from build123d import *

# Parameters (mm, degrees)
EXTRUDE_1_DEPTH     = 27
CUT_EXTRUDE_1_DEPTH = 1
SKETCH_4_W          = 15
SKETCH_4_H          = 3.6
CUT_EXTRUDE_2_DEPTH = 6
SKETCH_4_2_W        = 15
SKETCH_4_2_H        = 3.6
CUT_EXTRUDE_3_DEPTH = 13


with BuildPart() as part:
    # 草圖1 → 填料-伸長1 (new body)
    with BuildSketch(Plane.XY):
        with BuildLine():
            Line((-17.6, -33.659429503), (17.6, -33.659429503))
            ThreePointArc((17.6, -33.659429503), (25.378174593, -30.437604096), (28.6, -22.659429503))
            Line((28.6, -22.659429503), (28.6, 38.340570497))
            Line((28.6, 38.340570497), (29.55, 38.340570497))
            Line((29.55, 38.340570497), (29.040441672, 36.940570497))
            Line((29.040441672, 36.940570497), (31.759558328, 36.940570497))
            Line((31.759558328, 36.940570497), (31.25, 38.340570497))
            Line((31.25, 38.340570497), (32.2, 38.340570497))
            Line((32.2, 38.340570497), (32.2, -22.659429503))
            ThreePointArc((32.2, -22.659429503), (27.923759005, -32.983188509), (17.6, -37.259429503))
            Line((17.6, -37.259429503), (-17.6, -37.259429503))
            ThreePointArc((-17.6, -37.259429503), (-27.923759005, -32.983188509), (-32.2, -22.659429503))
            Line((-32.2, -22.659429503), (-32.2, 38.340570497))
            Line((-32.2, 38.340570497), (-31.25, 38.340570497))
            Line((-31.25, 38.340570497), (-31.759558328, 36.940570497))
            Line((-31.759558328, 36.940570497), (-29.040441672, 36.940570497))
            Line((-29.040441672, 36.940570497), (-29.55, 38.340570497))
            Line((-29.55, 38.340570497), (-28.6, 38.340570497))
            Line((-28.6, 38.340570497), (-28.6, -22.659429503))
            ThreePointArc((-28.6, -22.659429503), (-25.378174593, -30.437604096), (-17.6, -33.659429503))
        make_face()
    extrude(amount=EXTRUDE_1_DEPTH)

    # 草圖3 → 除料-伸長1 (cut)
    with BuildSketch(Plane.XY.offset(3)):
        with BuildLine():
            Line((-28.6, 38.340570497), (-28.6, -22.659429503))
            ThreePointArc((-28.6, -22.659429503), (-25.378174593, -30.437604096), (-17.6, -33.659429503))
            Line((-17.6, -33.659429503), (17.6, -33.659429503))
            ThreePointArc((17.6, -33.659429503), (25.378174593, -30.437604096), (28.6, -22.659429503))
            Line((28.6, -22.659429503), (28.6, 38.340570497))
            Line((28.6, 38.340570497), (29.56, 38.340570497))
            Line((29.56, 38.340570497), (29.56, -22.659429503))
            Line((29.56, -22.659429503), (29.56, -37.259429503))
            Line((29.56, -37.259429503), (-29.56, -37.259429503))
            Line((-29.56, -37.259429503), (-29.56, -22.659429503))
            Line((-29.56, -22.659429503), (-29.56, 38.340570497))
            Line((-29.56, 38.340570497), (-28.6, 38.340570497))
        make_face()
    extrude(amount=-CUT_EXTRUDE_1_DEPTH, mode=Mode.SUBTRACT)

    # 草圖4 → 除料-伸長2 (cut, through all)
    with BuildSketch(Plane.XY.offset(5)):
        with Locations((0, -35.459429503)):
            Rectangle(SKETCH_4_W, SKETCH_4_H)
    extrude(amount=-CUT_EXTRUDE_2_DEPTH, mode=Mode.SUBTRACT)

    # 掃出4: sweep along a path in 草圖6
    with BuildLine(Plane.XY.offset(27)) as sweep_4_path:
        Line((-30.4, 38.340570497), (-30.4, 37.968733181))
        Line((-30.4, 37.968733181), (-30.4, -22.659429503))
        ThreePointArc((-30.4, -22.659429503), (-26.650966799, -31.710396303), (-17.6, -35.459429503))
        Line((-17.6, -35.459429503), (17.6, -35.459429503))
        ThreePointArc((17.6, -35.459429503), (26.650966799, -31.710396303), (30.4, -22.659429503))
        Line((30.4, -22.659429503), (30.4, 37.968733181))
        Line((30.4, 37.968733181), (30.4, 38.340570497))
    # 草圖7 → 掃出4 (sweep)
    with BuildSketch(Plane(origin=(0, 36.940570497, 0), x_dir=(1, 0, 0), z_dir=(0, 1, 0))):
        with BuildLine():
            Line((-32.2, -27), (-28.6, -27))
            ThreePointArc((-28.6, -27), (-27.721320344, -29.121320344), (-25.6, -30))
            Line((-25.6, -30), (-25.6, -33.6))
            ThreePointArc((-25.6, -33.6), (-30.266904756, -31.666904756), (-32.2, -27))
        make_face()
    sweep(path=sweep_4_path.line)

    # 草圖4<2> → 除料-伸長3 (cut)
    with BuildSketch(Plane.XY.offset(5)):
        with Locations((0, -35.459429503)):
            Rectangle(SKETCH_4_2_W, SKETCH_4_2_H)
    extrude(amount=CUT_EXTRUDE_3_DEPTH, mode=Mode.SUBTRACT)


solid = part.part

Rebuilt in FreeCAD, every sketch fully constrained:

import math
import FreeCAD as App
import Part
import Sketcher
Q = App.Units.Quantity


def add_polygon(sketch, points):
    """Adds a closed chain of lines whose ends are joined by coincident constraints."""
    first, n = sketch.GeometryCount, len(points)
    for a, b in zip(points, points[1:] + points[:1]):
        sketch.addGeometry(Part.LineSegment(App.Vector(*a, 0), App.Vector(*b, 0)), False)
    for i in range(n):
        sketch.addConstraint(Sketcher.Constraint("Coincident", first + i, 2, first + (i + 1) % n, 1))

doc = App.newDocument("Part")
body = doc.addObject("PartDesign::Body", "Body")

# Sketch on XY plane
sketch1 = body.newObject("Sketcher::SketchObject", "Sketch")
sketch1.AttachmentSupport = (doc.getObject("XY_Plane"), [""])
sketch1.MapMode = "FlatFace"
sketch1.addGeometry([
    Part.LineSegment(App.Vector(17.6, -33.7, 0), App.Vector(-17.6, -33.7, 0)),  # 0
    Part.ArcOfCircle(Part.Circle(App.Vector(-17.6, -22.7, 0), App.Vector(0, 0, 1), 11), math.radians(180), math.radians(270)),  # 1
    Part.LineSegment(App.Vector(-28.6, -22.7, 0), App.Vector(-28.6, 38.3, 0)),  # 2
    Part.LineSegment(App.Vector(-28.6, 38.3, 0), App.Vector(-29.6, 38.3, 0)),  # 3
    Part.LineSegment(App.Vector(-29.6, 38.3, 0), App.Vector(-29, 36.9, 0)),  # 4
    Part.LineSegment(App.Vector(-29, 36.9, 0), App.Vector(-31.8, 36.9, 0)),  # 5
    Part.LineSegment(App.Vector(-31.8, 36.9, 0), App.Vector(-31.2, 38.3, 0)),  # 6
    Part.LineSegment(App.Vector(-31.2, 38.3, 0), App.Vector(-32.2, 38.3, 0)),  # 7
    Part.LineSegment(App.Vector(-32.2, 38.3, 0), App.Vector(-32.2, -22.7, 0)),  # 8
    Part.ArcOfCircle(Part.Circle(App.Vector(-17.6, -22.7, 0), App.Vector(0, 0, 1), 14.6), math.radians(180), math.radians(270)),  # 9
    Part.LineSegment(App.Vector(-17.6, -37.3, 0), App.Vector(17.6, -37.3, 0)),  # 10
    Part.ArcOfCircle(Part.Circle(App.Vector(17.6, -22.7, 0), App.Vector(0, 0, 1), 14.6), math.radians(-90), math.radians(0)),  # 11
    Part.LineSegment(App.Vector(32.2, -22.7, 0), App.Vector(32.2, 38.3, 0)),  # 12
    Part.LineSegment(App.Vector(32.2, 38.3, 0), App.Vector(31.2, 38.3, 0)),  # 13
    Part.LineSegment(App.Vector(31.2, 38.3, 0), App.Vector(31.8, 36.9, 0)),  # 14
    Part.LineSegment(App.Vector(31.8, 36.9, 0), App.Vector(29, 36.9, 0)),  # 15
    Part.LineSegment(App.Vector(29, 36.9, 0), App.Vector(29.6, 38.3, 0)),  # 16
    Part.LineSegment(App.Vector(29.6, 38.3, 0), App.Vector(28.6, 38.3, 0)),  # 17
    Part.LineSegment(App.Vector(28.6, 38.3, 0), App.Vector(28.6, -22.7, 0)),  # 18
    Part.ArcOfCircle(Part.Circle(App.Vector(17.6, -22.7, 0), App.Vector(0, 0, 1), 11), math.radians(-90), math.radians(0)),  # 19
], False)
sketch1.addConstraint([
    Sketcher.Constraint("Tangent", 0, 2, 1, 2),
    Sketcher.Constraint("Tangent", 1, 1, 2, 1),
    Sketcher.Constraint("Coincident", 2, 2, 3, 1),
    Sketcher.Constraint("Coincident", 3, 2, 4, 1),
    Sketcher.Constraint("Coincident", 4, 2, 5, 1),
    Sketcher.Constraint("Coincident", 5, 2, 6, 1),
    Sketcher.Constraint("Coincident", 6, 2, 7, 1),
    Sketcher.Constraint("Coincident", 7, 2, 8, 1),
    Sketcher.Constraint("Tangent", 8, 2, 9, 1),
    Sketcher.Constraint("Tangent", 9, 2, 10, 1),
    Sketcher.Constraint("Tangent", 10, 2, 11, 1),
    Sketcher.Constraint("Tangent", 11, 2, 12, 1),
    Sketcher.Constraint("Coincident", 12, 2, 13, 1),
    Sketcher.Constraint("Coincident", 13, 2, 14, 1),
    Sketcher.Constraint("Coincident", 14, 2, 15, 1),
    Sketcher.Constraint("Coincident", 15, 2, 16, 1),
    Sketcher.Constraint("Coincident", 16, 2, 17, 1),
    Sketcher.Constraint("Coincident", 17, 2, 18, 1),
    Sketcher.Constraint("Tangent", 18, 2, 19, 2),
    Sketcher.Constraint("Tangent", 19, 1, 0, 1),
    Sketcher.Constraint("Horizontal", 0),
    Sketcher.Constraint("Vertical", 2),
    Sketcher.Constraint("Horizontal", 3),
    Sketcher.Constraint("Horizontal", 5),
    Sketcher.Constraint("Horizontal", 7),
    Sketcher.Constraint("Vertical", 8),
    Sketcher.Constraint("Horizontal", 10),
    Sketcher.Constraint("Vertical", 12),
    Sketcher.Constraint("Horizontal", 13),
    Sketcher.Constraint("Horizontal", 15),
    Sketcher.Constraint("Horizontal", 17),
    Sketcher.Constraint("Vertical", 18),
    Sketcher.Constraint("Coincident", 9, 3, 1, 3),
    Sketcher.Constraint("Coincident", 19, 3, 11, 3),
    Sketcher.Constraint("Equal", 9, 11),
    Sketcher.Constraint("Symmetric", 7, 2, 12, 2, -2),
    Sketcher.Constraint("Symmetric", 5, 2, 14, 2, -2),
    Sketcher.Constraint("Symmetric", 3, 2, 16, 2, -2),
    Sketcher.Constraint("Parallel", 4, 14),
    Sketcher.Constraint("Parallel", 6, 16),
    Sketcher.Constraint("Horizontal", 3, 2, 6, 2),
    Sketcher.Constraint("Equal", 3, 7),
    Sketcher.Constraint("Equal", 7, 13),
    Sketcher.Constraint("Radius", 1, Q("11 mm")),
    Sketcher.Constraint("Radius", 9, Q("14.6 mm")),
    Sketcher.Constraint("DistanceY", 2, 1, 2, 2, Q("61 mm")),
    Sketcher.Constraint("Angle", 4, Q("-70 deg")),
    Sketcher.Constraint("DistanceX", 0, 2, 0, 1, Q("35.2 mm")),
    Sketcher.Constraint("DistanceX", 3, 2, 3, 1, Q("0.95 mm")),
    Sketcher.Constraint("DistanceY", 4, 2, 2, 2, Q("1.4 mm")),
    Sketcher.Constraint("DistanceY", 1, 3, -1, 1, Q("22.65943 mm")),
])
pad1 = body.newObject("PartDesign::Pad", "Pad")
pad1.Profile = sketch1
pad1.Length = 27

# Sketch on XY plane
sketch2 = body.newObject("Sketcher::SketchObject", "Sketch001")
sketch2.AttachmentSupport = (doc.getObject("XY_Plane"), [""])
sketch2.MapMode = "FlatFace"
sketch2.AttachmentOffset = App.Placement(App.Vector(0, 0, 3), App.Rotation())
sketch2.addGeometry([
    Part.LineSegment(App.Vector(-28.6, -22.7, 0), App.Vector(-28.6, 38.3, 0)),  # 0
    Part.LineSegment(App.Vector(-28.6, 38.3, 0), App.Vector(-29.6, 38.3, 0)),  # 1
    Part.LineSegment(App.Vector(-29.6, 38.3, 0), App.Vector(-29.6, -37.3, 0)),  # 2
    Part.LineSegment(App.Vector(-29.6, -37.3, 0), App.Vector(29.6, -37.3, 0)),  # 3
    Part.LineSegment(App.Vector(29.6, -37.3, 0), App.Vector(29.6, 38.3, 0)),  # 4
    Part.LineSegment(App.Vector(29.6, 38.3, 0), App.Vector(28.6, 38.3, 0)),  # 5
    Part.LineSegment(App.Vector(28.6, 38.3, 0), App.Vector(28.6, -22.7, 0)),  # 6
    Part.ArcOfCircle(Part.Circle(App.Vector(17.6, -22.7, 0), App.Vector(0, 0, 1), 11), math.radians(-90), math.radians(0)),  # 7
    Part.LineSegment(App.Vector(17.6, -33.7, 0), App.Vector(-17.6, -33.7, 0)),  # 8
    Part.ArcOfCircle(Part.Circle(App.Vector(-17.6, -22.7, 0), App.Vector(0, 0, 1), 11), math.radians(180), math.radians(270)),  # 9
], False)
sketch2.addConstraint([
    Sketcher.Constraint("Coincident", 0, 2, 1, 1),
    Sketcher.Constraint("Coincident", 1, 2, 2, 1),
    Sketcher.Constraint("Coincident", 2, 2, 3, 1),
    Sketcher.Constraint("Coincident", 3, 2, 4, 1),
    Sketcher.Constraint("Coincident", 4, 2, 5, 1),
    Sketcher.Constraint("Coincident", 5, 2, 6, 1),
    Sketcher.Constraint("Tangent", 6, 2, 7, 2),
    Sketcher.Constraint("Tangent", 7, 1, 8, 1),
    Sketcher.Constraint("Tangent", 8, 2, 9, 2),
    Sketcher.Constraint("Tangent", 9, 1, 0, 1),
    Sketcher.Constraint("Vertical", 0),
    Sketcher.Constraint("Horizontal", 1),
    Sketcher.Constraint("Vertical", 2),
    Sketcher.Constraint("Horizontal", 3),
    Sketcher.Constraint("Vertical", 4),
    Sketcher.Constraint("Horizontal", 5),
    Sketcher.Constraint("Vertical", 6),
    Sketcher.Constraint("Horizontal", 8),
    Sketcher.Constraint("Equal", 7, 9),
    Sketcher.Constraint("Symmetric", 1, 2, 4, 2, -2),
    Sketcher.Constraint("Equal", 1, 5),
    Sketcher.Constraint("Radius", 7, Q("11 mm")),
    Sketcher.Constraint("DistanceY", 0, 1, 0, 2, Q("61 mm")),
    Sketcher.Constraint("DistanceX", 8, 2, 8, 1, Q("35.2 mm")),
    Sketcher.Constraint("DistanceY", 2, 2, 2, 1, Q("75.6 mm")),
    Sketcher.Constraint("DistanceX", 1, 2, 1, 1, Q("0.96 mm")),
    Sketcher.Constraint("DistanceY", 7, 3, -1, 1, Q("22.65943 mm")),
])
pocket1 = body.newObject("PartDesign::Pocket", "Pocket")
pocket1.Profile = sketch2
pocket1.Length = 1

# Sketch on XY plane
sketch3 = body.newObject("Sketcher::SketchObject", "Sketch002")
sketch3.AttachmentSupport = (doc.getObject("XY_Plane"), [""])
sketch3.MapMode = "FlatFace"
sketch3.AttachmentOffset = App.Placement(App.Vector(0, 0, 5), App.Rotation())
add_polygon(sketch3, [(-7.5, -33.7), (-7.5, -37.3), (7.5, -37.3), (7.5, -33.7)])  # lines 0-3
sketch3.addConstraint([
    Sketcher.Constraint("Vertical", 0),
    Sketcher.Constraint("Horizontal", 1),
    Sketcher.Constraint("Vertical", 2),
    Sketcher.Constraint("Horizontal", 3),
    Sketcher.Constraint("DistanceX", 1, 1, 1, 2, Q("15 mm")),
    Sketcher.Constraint("DistanceY", 0, 2, 0, 1, Q("3.6 mm")),
    Sketcher.Constraint("DistanceX", 0, 2, -1, 1, Q("7.5 mm")),
    Sketcher.Constraint("DistanceY", 0, 2, -1, 1, Q("37.25943 mm")),
])
pocket2 = body.newObject("PartDesign::Pocket", "Pocket001")
pocket2.Profile = sketch3
pocket2.Type = "ThroughAll"

# Sketch on XZ plane
sketch4 = body.newObject("Sketcher::SketchObject", "Sketch003")
sketch4.AttachmentSupport = (doc.getObject("XZ_Plane"), [""])
sketch4.MapMode = "FlatFace"
sketch4.AttachmentOffset = App.Placement(App.Vector(0, 0, -36.94057), App.Rotation())
sketch4.addGeometry([
    Part.LineSegment(App.Vector(-28.6, 27, 0), App.Vector(-32.2, 27, 0)),
    Part.ArcOfCircle(Part.Circle(App.Vector(-25.6, 27, 0), App.Vector(0, 0, 1), 6.6), math.radians(90), math.radians(180)),
    Part.LineSegment(App.Vector(-25.6, 33.6, 0), App.Vector(-25.6, 30, 0)),
    Part.ArcOfCircle(Part.Circle(App.Vector(-25.6, 27, 0), App.Vector(0, 0, 1), 3), math.radians(90), math.radians(180)),
], False)
sketch4.addConstraint([
    Sketcher.Constraint("Coincident", 0, 2, 1, 2),
    Sketcher.Constraint("Coincident", 1, 1, 2, 1),
    Sketcher.Constraint("Coincident", 2, 2, 3, 1),
    Sketcher.Constraint("Coincident", 3, 2, 0, 1),
    Sketcher.Constraint("Horizontal", 0),
    Sketcher.Constraint("Vertical", 2),
    Sketcher.Constraint("Coincident", 3, 3, 1, 3),
    Sketcher.Constraint("Horizontal", 3, 3, 0, 2),
    Sketcher.Constraint("Vertical", 3, 3, 1, 1),
    Sketcher.Constraint("Radius", 3, Q("3 mm")),
    Sketcher.Constraint("Radius", 1, Q("6.6 mm")),
    Sketcher.Constraint("DistanceY", -1, 1, 1, 3, Q("27 mm")),
    Sketcher.Constraint("DistanceX", 1, 3, -1, 1, Q("25.6 mm")),
])

# Sketch on XY plane
sketch5 = body.newObject("Sketcher::SketchObject", "Sketch004")
sketch5.AttachmentSupport = (doc.getObject("XY_Plane"), [""])
sketch5.MapMode = "FlatFace"
sketch5.AttachmentOffset = App.Placement(App.Vector(0, 0, 27), App.Rotation())
sketch5.addGeometry([
    Part.LineSegment(App.Vector(-30, 38, 0), App.Vector(-30, -23, 0)),  # 0
    Part.ArcOfCircle(Part.Circle(App.Vector(-18, -23, 0), App.Vector(0, 0, 1), 13), math.radians(180), math.radians(270)),  # 1
    Part.LineSegment(App.Vector(-18, -35, 0), App.Vector(18, -35, 0)),  # 2
    Part.ArcOfCircle(Part.Circle(App.Vector(18, -23, 0), App.Vector(0, 0, 1), 13), math.radians(-90), math.radians(0)),  # 3
    Part.LineSegment(App.Vector(30, -23, 0), App.Vector(30, 38, 0)),  # 4
], False)
sketch5.addConstraint([
    Sketcher.Constraint("Tangent", 0, 2, 1, 1),
    Sketcher.Constraint("Tangent", 1, 2, 2, 1),
    Sketcher.Constraint("Tangent", 2, 2, 3, 1),
    Sketcher.Constraint("Tangent", 3, 2, 4, 1),
    Sketcher.Constraint("Vertical", 0),
    Sketcher.Constraint("Horizontal", 2),
    Sketcher.Constraint("Vertical", 4),
    Sketcher.Constraint("Equal", 1, 3),
    Sketcher.Constraint("Symmetric", 0, 1, 4, 2, -2),
    Sketcher.Constraint("Radius", 1, Q("12.8 mm")),
    Sketcher.Constraint("DistanceY", 0, 2, 0, 1, Q("61 mm")),
    Sketcher.Constraint("DistanceX", 2, 1, 2, 2, Q("35.2 mm")),
    Sketcher.Constraint("DistanceY", 1, 3, -1, 1, Q("22.65943 mm")),
])
doc.recompute()

additivepipe = body.newObject("PartDesign::AdditivePipe", "AdditivePipe")
additivepipe.Profile = sketch4
additivepipe.Spine = (sketch5, ["Edge1", "Edge2", "Edge3", "Edge4", "Edge5"])

# Sketch on XY plane
sketch6 = body.newObject("Sketcher::SketchObject", "Sketch005")
sketch6.AttachmentSupport = (doc.getObject("XY_Plane"), [""])
sketch6.MapMode = "FlatFace"
sketch6.AttachmentOffset = App.Placement(App.Vector(0, 0, 5), App.Rotation())
add_polygon(sketch6, [(-7.5, -33.7), (-7.5, -37.3), (7.5, -37.3), (7.5, -33.7)])  # lines 0-3
sketch6.addConstraint([
    Sketcher.Constraint("Vertical", 0),
    Sketcher.Constraint("Horizontal", 1),
    Sketcher.Constraint("Vertical", 2),
    Sketcher.Constraint("Horizontal", 3),
    Sketcher.Constraint("DistanceX", 1, 1, 1, 2, Q("15 mm")),
    Sketcher.Constraint("DistanceY", 0, 2, 0, 1, Q("3.6 mm")),
    Sketcher.Constraint("DistanceX", 0, 2, -1, 1, Q("7.5 mm")),
    Sketcher.Constraint("DistanceY", 0, 2, -1, 1, Q("37.25943 mm")),
])
pocket3 = body.newObject("PartDesign::Pocket", "Pocket002")
pocket3.Profile = sketch6
pocket3.Length = 13
pocket3.Reversed = True

doc.recompute()
